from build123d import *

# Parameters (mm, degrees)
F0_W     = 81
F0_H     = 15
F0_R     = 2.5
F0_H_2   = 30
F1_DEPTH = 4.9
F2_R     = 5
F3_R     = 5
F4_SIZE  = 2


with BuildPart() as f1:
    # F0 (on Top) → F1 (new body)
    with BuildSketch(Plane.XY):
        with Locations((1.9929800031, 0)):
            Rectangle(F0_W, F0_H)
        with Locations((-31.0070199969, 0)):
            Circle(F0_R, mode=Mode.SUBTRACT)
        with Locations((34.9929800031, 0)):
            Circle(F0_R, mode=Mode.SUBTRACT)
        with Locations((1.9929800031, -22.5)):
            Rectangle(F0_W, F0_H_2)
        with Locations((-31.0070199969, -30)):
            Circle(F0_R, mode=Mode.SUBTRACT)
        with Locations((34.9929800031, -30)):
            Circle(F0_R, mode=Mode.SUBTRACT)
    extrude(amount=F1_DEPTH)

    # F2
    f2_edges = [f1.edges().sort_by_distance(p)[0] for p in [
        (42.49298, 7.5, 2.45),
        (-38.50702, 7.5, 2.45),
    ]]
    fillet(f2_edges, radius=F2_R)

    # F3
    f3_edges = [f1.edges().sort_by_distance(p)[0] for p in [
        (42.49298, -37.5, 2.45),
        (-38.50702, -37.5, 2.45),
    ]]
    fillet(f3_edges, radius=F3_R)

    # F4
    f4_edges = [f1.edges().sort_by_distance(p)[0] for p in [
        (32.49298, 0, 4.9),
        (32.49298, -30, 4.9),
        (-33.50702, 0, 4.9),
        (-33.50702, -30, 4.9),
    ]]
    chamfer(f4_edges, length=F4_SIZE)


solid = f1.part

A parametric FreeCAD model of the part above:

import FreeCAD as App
import Part
import Sketcher
from FreeCAD import Vector
Q = App.Units.Quantity


def edges_at(feature, points):
    """Names of the edges that pass closest to the given points."""
    edges = feature.Shape.Edges
    near = lambda p: min(range(len(edges)), key=lambda i: edges[i].distToShape(Part.Vertex(*p))[0])
    return sorted({f"Edge{near(p) + 1}" for p in points})


def add_polygon(sketch, points):
    """Adds a closed chain of lines whose ends are joined by coincident constraints."""
    first, n = sketch.GeometryCount, len(points)
    for a, b in zip(points, points[1:] + points[:1]):
        sketch.addGeometry(Part.LineSegment(App.Vector(*a, 0), App.Vector(*b, 0)), False)
    for i in range(n):
        sketch.addConstraint(Sketcher.Constraint("Coincident", first + i, 2, first + (i + 1) % n, 1))

doc = App.newDocument("Part")
body = doc.addObject("PartDesign::Body", "Body")

# Sketch on XY plane
sketch1 = doc.addObject("Sketcher::SketchObject", "Sketch")
body.addObject(sketch1)
sketch1.AttachmentSupport = (doc.XY_Plane, [""])
sketch1.MapMode = "FlatFace"
add_polygon(sketch1, [(-38.5, 7.5), (-38.5, -37.5), (42.5, -37.5), (42.5, 7.5)])  # lines 0-3
sketch1.addGeometry(Part.Circle(Vector(-31, -30, 0), Vector(0, 0, 1), 2.5), False)  # 4
sketch1.addGeometry(Part.Circle(Vector(35, -30, 0), Vector(0, 0, 1), 2.5), False)  # 5
sketch1.addGeometry(Part.Circle(Vector(-31, 0, 0), Vector(0, 0, 1), 2.5), False)  # 6
sketch1.addGeometry(Part.Circle(Vector(35, 0, 0), Vector(0, 0, 1), 2.5), False)  # 7
sketch1.addConstraint([
    Sketcher.Constraint("Vertical", 0),
    Sketcher.Constraint("Horizontal", 1),
    Sketcher.Constraint("Vertical", 2),
    Sketcher.Constraint("Horizontal", 3),
    Sketcher.Constraint("Equal", 4, 5),
    Sketcher.Constraint("Equal", 5, 6),
    Sketcher.Constraint("Equal", 6, 7),
    Sketcher.Constraint("PointOnObject", 6, 3, -1),
    Sketcher.Constraint("PointOnObject", 7, 3, -1),
    Sketcher.Constraint("Horizontal", 4, 3, 5, 3),
    Sketcher.Constraint("Vertical", 4, 3, 6, 3),
    Sketcher.Constraint("Vertical", 5, 3, 7, 3),
    Sketcher.Constraint("Diameter", 4, Q("5 mm")),
    Sketcher.Constraint("DistanceX", 1, 1, 1, 2, Q("81 mm")),
    Sketcher.Constraint("DistanceY", 0, 2, 0, 1, Q("45 mm")),
    Sketcher.Constraint("DistanceY", 4, 3, -1, 1, Q("30 mm")),
    Sketcher.Constraint("DistanceX", 4, 3, 5, 3, Q("66 mm")),
    Sketcher.Constraint("DistanceY", 0, 2, -1, 1, Q("37.5 mm")),
    Sketcher.Constraint("DistanceX", 0, 2, 4, 3, Q("7.5 mm")),
    Sketcher.Constraint("DistanceX", 4, 3, -1, 1, Q("31.00702 mm")),
])
pad1 = doc.addObject("PartDesign::Pad", "Pad")
body.addObject(pad1)
pad1.Profile = sketch1
pad1.Length = 4.9
doc.recompute()

fillet = doc.addObject("PartDesign::Fillet", "Fillet")
body.addObject(fillet)
fillet.Base = (pad1, edges_at(pad1, [(42.493, 7.5, 2.45), (-38.507, 7.5, 2.45)]))
fillet.Radius = 5
doc.recompute()

fillet2 = doc.addObject("PartDesign::Fillet", "Fillet001")
body.addObject(fillet2)
fillet2.Base = (fillet, edges_at(fillet, [(42.493, -37.5, 2.45), (-38.507, -37.5, 2.45)]))
fillet2.Radius = 5
doc.recompute()

chamfer = doc.addObject("PartDesign::Chamfer", "Chamfer")
body.addObject(chamfer)
chamfer.Base = (fillet2, edges_at(fillet2, [
    (32.493, 0, 4.9),
    (32.493, -30, 4.9),
    (-33.507, 0, 4.9),
    (-33.507, -30, 4.9),
]))
chamfer.Size = 2

doc.recompute()
